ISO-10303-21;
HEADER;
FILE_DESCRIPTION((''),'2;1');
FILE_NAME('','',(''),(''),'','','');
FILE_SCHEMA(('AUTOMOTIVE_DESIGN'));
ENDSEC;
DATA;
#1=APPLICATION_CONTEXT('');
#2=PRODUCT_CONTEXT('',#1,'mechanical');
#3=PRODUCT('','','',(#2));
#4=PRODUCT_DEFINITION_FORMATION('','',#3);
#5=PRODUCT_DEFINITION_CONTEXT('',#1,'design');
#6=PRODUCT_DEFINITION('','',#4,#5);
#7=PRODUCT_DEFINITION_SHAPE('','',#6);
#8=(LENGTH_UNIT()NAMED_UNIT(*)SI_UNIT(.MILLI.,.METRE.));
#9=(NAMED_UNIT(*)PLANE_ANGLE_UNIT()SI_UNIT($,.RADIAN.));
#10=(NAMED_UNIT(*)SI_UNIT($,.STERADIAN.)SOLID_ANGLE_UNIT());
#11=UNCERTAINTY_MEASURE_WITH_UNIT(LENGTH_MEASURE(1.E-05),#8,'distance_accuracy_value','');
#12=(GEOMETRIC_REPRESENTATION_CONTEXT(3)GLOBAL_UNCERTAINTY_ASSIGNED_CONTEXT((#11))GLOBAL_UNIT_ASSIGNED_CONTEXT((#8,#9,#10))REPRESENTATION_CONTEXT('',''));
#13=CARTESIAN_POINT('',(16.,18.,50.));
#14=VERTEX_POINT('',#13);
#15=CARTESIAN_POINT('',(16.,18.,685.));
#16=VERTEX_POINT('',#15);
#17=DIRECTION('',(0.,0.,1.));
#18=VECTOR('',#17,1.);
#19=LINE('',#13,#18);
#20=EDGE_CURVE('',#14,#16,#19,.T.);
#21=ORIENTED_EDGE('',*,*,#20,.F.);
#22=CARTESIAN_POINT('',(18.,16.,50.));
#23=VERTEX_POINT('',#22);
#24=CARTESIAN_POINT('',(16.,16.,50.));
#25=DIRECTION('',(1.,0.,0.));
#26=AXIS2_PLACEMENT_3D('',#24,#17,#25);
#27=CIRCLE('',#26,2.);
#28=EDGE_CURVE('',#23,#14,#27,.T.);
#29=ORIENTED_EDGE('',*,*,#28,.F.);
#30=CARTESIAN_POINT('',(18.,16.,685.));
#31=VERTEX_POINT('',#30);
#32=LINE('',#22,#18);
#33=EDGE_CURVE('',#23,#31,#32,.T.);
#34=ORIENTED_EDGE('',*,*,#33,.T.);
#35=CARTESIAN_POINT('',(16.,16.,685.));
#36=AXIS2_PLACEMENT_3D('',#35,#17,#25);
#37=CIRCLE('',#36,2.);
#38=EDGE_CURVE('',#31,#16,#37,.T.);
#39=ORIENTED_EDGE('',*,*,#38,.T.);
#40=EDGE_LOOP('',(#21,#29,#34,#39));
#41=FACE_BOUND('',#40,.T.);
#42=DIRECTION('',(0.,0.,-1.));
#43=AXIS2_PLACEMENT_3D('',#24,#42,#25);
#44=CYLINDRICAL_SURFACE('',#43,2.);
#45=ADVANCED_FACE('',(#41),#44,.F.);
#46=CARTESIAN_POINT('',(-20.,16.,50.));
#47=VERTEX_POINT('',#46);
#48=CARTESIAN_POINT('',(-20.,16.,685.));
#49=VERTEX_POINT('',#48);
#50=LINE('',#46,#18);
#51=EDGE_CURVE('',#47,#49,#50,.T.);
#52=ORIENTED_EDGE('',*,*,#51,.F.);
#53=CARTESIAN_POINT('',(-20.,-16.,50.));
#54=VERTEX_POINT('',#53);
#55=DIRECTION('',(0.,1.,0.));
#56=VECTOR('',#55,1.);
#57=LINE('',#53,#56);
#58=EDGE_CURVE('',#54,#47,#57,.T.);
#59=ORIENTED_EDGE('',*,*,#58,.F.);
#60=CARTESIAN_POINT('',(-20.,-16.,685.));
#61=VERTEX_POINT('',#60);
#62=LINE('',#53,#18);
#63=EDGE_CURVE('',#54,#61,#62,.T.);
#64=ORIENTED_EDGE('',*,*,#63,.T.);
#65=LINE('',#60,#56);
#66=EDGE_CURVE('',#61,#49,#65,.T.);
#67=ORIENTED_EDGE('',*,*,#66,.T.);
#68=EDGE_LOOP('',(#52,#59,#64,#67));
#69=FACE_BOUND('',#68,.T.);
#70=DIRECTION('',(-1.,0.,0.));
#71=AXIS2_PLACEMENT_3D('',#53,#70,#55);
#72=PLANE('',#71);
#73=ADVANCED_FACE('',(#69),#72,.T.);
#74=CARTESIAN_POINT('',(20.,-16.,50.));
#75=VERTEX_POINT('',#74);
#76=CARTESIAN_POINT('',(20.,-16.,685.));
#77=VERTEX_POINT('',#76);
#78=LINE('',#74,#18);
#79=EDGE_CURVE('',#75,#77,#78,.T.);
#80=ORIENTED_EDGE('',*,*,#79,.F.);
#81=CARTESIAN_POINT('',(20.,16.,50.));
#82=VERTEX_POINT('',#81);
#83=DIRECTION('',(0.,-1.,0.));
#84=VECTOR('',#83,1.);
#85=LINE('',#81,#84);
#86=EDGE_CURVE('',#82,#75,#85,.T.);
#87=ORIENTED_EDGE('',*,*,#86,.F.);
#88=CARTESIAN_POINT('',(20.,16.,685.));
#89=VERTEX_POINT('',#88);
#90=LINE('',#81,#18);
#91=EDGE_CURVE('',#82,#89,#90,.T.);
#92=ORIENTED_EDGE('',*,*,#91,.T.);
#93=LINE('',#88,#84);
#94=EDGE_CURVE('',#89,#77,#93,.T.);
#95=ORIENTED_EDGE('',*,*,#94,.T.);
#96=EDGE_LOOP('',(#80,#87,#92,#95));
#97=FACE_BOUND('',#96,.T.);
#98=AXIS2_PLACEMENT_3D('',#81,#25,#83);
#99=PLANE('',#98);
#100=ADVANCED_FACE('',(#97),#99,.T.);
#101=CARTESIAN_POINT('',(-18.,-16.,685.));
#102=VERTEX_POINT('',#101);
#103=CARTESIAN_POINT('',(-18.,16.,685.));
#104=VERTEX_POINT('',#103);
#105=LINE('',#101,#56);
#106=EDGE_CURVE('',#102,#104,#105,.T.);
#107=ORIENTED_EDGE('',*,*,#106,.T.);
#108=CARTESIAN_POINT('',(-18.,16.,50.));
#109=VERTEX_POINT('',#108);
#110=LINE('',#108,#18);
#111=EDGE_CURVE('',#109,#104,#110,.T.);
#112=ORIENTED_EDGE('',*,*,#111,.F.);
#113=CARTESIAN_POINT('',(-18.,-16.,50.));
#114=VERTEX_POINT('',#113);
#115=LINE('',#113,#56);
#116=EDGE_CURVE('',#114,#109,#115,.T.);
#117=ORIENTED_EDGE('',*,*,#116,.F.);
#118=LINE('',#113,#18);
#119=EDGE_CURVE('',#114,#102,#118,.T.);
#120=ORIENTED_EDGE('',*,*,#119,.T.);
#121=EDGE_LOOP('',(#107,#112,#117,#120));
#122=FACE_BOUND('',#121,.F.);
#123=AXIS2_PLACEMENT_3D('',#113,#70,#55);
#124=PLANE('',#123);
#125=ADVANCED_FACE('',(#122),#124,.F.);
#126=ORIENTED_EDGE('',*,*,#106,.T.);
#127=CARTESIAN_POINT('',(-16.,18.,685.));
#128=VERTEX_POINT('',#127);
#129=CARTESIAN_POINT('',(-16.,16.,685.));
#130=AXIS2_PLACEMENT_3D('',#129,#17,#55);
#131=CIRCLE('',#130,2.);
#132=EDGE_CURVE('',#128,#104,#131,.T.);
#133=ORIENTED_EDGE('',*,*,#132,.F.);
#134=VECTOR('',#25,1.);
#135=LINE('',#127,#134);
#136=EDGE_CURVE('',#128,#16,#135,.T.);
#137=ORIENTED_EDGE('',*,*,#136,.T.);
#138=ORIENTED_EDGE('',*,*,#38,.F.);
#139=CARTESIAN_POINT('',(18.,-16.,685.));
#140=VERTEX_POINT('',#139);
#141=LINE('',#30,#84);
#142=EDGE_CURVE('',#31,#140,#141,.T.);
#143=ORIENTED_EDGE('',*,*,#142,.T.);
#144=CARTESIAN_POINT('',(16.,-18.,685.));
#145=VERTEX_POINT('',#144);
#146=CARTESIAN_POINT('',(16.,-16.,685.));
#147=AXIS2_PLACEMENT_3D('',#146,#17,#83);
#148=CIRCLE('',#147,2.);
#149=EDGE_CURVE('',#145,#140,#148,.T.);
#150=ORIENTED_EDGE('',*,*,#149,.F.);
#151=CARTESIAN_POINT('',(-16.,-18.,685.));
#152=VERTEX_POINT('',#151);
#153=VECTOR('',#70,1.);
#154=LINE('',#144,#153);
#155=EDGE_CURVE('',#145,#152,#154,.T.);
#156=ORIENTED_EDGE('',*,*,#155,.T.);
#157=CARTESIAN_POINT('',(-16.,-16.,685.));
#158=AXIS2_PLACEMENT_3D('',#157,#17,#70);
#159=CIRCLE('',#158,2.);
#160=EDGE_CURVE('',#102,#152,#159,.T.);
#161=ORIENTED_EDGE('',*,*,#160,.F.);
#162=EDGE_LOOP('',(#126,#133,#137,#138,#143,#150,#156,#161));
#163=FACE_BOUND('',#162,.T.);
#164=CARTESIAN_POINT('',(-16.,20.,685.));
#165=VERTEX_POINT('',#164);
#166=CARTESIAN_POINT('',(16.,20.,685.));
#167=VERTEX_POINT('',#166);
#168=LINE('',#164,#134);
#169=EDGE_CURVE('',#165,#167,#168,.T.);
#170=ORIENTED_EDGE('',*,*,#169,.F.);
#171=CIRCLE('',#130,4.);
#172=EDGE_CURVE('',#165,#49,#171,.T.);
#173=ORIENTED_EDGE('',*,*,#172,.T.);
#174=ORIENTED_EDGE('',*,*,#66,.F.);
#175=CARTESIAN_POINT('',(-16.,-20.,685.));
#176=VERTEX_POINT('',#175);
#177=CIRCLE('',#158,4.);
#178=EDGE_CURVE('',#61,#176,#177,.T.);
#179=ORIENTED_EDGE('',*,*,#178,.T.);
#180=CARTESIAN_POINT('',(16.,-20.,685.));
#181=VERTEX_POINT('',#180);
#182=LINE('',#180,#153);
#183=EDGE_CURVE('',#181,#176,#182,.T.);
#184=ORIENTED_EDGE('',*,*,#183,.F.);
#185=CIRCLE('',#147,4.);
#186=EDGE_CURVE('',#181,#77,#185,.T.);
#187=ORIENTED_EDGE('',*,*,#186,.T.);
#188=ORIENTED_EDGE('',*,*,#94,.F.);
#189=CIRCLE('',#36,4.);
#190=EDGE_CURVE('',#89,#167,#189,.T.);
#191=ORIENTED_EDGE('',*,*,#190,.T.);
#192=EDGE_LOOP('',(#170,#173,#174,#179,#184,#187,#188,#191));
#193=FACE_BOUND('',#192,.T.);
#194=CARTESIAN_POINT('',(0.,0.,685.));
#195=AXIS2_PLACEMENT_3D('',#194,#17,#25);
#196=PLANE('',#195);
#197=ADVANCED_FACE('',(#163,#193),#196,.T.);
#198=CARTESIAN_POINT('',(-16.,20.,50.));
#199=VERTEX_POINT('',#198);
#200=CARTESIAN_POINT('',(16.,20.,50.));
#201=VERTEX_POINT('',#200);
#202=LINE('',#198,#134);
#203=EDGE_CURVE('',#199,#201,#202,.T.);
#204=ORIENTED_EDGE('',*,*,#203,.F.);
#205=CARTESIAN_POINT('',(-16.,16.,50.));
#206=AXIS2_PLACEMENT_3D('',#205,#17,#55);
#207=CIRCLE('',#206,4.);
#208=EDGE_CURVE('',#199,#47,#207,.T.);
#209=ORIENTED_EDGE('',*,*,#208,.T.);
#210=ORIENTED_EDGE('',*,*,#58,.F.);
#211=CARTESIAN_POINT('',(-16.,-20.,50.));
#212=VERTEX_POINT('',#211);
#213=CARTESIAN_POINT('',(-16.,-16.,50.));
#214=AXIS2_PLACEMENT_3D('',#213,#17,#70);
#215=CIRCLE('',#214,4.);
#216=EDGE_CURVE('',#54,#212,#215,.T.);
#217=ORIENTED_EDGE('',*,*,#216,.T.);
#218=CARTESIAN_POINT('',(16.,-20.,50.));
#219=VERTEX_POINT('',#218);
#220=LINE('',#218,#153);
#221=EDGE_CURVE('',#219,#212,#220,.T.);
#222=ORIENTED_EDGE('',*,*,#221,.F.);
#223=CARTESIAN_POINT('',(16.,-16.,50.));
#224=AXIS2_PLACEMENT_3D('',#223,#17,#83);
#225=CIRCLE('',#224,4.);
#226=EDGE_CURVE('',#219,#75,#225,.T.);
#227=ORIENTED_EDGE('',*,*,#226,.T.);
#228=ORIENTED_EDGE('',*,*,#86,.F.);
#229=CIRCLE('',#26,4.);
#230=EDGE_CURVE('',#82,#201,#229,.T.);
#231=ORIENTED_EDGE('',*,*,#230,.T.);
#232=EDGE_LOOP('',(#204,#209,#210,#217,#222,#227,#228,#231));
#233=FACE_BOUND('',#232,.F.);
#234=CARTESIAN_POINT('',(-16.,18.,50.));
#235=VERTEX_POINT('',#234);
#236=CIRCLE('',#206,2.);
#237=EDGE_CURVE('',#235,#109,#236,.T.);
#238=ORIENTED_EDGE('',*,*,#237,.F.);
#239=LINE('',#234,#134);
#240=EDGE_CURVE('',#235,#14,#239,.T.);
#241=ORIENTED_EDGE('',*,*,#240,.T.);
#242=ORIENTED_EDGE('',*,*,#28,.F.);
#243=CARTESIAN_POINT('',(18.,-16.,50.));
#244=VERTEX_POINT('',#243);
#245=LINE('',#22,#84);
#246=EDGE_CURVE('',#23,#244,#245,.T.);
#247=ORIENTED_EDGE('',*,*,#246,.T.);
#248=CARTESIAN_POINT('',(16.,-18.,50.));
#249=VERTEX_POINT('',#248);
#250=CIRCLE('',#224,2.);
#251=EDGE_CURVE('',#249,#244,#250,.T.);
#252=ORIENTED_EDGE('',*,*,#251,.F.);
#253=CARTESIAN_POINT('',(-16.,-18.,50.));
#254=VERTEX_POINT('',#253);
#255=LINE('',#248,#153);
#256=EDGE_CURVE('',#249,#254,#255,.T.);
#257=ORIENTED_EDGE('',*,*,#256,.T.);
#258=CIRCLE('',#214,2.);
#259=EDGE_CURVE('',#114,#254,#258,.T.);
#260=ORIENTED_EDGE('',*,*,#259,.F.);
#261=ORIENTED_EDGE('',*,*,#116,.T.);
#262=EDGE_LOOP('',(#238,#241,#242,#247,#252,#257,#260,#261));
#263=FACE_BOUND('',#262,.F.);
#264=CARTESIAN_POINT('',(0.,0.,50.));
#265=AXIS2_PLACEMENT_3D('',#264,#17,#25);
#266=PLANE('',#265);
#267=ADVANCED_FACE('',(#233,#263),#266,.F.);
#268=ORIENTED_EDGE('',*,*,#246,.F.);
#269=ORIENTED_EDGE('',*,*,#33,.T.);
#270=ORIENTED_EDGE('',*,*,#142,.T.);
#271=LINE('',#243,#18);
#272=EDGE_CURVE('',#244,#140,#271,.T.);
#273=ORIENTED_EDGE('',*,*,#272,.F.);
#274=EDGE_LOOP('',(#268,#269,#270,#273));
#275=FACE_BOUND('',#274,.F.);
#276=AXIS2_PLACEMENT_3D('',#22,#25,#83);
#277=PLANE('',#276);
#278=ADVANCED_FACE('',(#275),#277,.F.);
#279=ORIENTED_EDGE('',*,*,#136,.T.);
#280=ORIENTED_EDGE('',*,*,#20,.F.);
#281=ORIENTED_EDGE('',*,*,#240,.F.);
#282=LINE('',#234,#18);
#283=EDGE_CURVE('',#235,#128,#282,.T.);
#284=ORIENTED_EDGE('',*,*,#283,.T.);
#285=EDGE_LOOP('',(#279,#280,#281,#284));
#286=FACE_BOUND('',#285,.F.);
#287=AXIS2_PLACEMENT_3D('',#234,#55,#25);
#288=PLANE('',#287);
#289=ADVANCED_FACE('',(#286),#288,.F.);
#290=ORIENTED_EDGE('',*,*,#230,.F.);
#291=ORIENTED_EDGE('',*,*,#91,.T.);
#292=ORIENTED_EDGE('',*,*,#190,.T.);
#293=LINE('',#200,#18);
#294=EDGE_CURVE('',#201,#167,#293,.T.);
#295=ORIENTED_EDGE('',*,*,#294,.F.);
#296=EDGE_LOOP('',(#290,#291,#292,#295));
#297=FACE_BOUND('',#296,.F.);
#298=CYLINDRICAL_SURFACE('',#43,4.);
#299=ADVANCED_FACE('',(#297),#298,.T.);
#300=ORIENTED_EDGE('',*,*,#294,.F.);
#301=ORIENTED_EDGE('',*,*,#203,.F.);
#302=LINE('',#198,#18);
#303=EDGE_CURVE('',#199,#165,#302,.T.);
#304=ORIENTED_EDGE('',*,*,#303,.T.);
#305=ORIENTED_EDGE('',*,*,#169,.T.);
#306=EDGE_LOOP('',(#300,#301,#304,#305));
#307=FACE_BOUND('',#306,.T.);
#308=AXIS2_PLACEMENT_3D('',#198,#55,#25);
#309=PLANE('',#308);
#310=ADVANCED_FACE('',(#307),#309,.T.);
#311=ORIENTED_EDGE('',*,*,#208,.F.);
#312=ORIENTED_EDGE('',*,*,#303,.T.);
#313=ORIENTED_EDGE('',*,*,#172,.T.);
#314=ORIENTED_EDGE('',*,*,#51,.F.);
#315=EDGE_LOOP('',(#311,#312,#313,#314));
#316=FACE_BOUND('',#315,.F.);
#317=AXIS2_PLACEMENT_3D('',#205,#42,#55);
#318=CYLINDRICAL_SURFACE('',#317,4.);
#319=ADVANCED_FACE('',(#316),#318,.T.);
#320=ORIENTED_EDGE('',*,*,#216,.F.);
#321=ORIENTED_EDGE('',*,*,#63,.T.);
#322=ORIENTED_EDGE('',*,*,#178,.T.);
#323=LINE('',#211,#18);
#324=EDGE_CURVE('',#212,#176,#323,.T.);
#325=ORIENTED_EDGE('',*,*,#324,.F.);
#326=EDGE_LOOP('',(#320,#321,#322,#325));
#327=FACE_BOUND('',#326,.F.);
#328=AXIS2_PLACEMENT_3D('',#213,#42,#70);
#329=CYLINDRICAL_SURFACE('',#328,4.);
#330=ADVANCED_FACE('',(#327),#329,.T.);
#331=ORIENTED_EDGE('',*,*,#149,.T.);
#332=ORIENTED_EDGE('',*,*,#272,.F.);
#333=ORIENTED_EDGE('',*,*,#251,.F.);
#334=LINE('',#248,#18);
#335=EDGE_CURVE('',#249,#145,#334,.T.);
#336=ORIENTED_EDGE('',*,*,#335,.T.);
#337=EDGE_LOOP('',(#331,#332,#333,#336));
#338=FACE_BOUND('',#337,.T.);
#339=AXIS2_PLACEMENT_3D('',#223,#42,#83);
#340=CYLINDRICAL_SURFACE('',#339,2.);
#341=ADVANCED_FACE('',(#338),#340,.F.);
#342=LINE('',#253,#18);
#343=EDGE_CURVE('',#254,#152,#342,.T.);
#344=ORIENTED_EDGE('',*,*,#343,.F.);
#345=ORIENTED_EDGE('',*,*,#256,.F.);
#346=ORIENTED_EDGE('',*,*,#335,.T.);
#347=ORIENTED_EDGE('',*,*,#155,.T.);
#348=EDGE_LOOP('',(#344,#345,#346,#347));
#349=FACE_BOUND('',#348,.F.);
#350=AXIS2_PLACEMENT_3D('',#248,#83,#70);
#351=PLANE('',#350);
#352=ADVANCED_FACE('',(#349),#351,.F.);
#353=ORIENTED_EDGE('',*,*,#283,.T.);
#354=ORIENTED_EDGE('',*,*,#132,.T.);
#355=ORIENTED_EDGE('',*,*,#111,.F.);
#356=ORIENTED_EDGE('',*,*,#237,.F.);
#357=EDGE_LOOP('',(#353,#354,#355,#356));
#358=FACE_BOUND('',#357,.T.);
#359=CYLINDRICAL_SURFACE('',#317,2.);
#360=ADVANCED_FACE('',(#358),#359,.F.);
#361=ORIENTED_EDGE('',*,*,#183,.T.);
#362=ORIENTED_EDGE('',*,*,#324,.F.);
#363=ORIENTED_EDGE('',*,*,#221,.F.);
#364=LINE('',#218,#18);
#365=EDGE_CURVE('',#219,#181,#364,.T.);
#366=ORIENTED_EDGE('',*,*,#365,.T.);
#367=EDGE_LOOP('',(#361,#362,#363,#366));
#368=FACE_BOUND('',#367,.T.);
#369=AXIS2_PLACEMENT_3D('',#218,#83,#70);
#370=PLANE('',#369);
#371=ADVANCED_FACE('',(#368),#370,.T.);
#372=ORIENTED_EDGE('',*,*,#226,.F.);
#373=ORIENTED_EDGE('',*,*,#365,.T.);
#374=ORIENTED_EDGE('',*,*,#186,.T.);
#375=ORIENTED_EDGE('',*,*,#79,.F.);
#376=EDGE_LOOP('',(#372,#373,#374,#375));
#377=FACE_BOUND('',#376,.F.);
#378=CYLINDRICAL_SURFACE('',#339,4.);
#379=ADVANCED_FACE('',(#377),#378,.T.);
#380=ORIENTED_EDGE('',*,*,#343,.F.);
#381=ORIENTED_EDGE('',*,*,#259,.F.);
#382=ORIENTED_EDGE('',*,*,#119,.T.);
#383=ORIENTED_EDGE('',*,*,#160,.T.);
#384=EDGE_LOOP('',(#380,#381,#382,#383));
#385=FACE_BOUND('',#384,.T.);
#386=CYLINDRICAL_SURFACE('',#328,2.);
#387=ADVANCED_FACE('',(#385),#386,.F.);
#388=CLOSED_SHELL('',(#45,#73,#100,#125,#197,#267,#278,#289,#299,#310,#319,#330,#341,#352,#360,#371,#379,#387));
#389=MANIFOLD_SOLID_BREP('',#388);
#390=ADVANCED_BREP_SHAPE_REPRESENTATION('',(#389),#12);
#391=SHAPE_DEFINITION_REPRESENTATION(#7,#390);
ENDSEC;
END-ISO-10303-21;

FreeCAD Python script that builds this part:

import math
import FreeCAD as App
import Part
import Sketcher
from FreeCAD import Vector
Q = App.Units.Quantity

doc = App.newDocument("Part")
body = doc.addObject("PartDesign::Body", "Body")

sketch1 = body.newObject("Sketcher::SketchObject", "Sketch")
sketch1.AttachmentSupport = (doc.getObject("XY_Plane"), [""])
sketch1.MapMode = "FlatFace"
sketch1.AttachmentOffset = App.Placement(Vector(0, 0, 50), App.Rotation())
sketch1.addGeometry([
    Part.LineSegment(Vector(-20, 16, 0), Vector(-20, -16, 0)),
    Part.ArcOfCircle(Part.Circle(Vector(-16, -16, 0), Vector(0, 0, 1), 4), math.radians(180), math.radians(270)),
    Part.LineSegment(Vector(-16, -20, 0), Vector(16, -20, 0)),
    Part.ArcOfCircle(Part.Circle(Vector(16, -16, 0), Vector(0, 0, 1), 4), math.radians(-90), math.radians(0)),
    Part.LineSegment(Vector(20, -16, 0), Vector(20, 16, 0)),
    Part.ArcOfCircle(Part.Circle(Vector(16, 16, 0), Vector(0, 0, 1), 4), math.radians(0), math.radians(90)),
    Part.LineSegment(Vector(16, 20, 0), Vector(-16, 20, 0)),
    Part.ArcOfCircle(Part.Circle(Vector(-16, 16, 0), Vector(0, 0, 1), 4), math.radians(90), math.radians(180)),
    Part.ArcOfCircle(Part.Circle(Vector(-16, 16, 0), Vector(0, 0, 1), 2), math.radians(90), math.radians(180)),
    Part.LineSegment(Vector(-16, 18, 0), Vector(16, 18, 0)),
    Part.ArcOfCircle(Part.Circle(Vector(16, 16, 0), Vector(0, 0, 1), 2), math.radians(0), math.radians(90)),
    Part.LineSegment(Vector(18, 16, 0), Vector(18, -16, 0)),
    Part.ArcOfCircle(Part.Circle(Vector(16, -16, 0), Vector(0, 0, 1), 2), math.radians(-90), math.radians(0)),
    Part.LineSegment(Vector(16, -18, 0), Vector(-16, -18, 0)),
    Part.ArcOfCircle(Part.Circle(Vector(-16, -16, 0), Vector(0, 0, 1), 2), math.radians(180), math.radians(270)),
    Part.LineSegment(Vector(-18, -16, 0), Vector(-18, 16, 0)),
], False)
sketch1.addConstraint([
    Sketcher.Constraint("Tangent", 0, 2, 1, 1),
    Sketcher.Constraint("Tangent", 1, 2, 2, 1),
    Sketcher.Constraint("Tangent", 2, 2, 3, 1),
    Sketcher.Constraint("Tangent", 3, 2, 4, 1),
    Sketcher.Constraint("Tangent", 4, 2, 5, 1),
    Sketcher.Constraint("Tangent", 5, 2, 6, 1),
    Sketcher.Constraint("Tangent", 6, 2, 7, 1),
    Sketcher.Constraint("Tangent", 7, 2, 0, 1),
    Sketcher.Constraint("Tangent", 8, 1, 9, 1),
    Sketcher.Constraint("Tangent", 9, 2, 10, 2),
    Sketcher.Constraint("Tangent", 10, 1, 11, 1),
    Sketcher.Constraint("Tangent", 11, 2, 12, 2),
    Sketcher.Constraint("Tangent", 12, 1, 13, 1),
    Sketcher.Constraint("Tangent", 13, 2, 14, 2),
    Sketcher.Constraint("Tangent", 14, 1, 15, 1),
    Sketcher.Constraint("Tangent", 15, 2, 8, 2),
    Sketcher.Constraint("Vertical", 0),
    Sketcher.Constraint("Horizontal", 2),
    Sketcher.Constraint("Vertical", 4),
    Sketcher.Constraint("Horizontal", 6),
    Sketcher.Constraint("Horizontal", 9),
    Sketcher.Constraint("Vertical", 11),
    Sketcher.Constraint("Horizontal", 13),
    Sketcher.Constraint("Vertical", 15),
    Sketcher.Constraint("Coincident", 8, 3, 7, 3),
    Sketcher.Constraint("Coincident", 10, 3, 5, 3),
    Sketcher.Constraint("Coincident", 12, 3, 3, 3),
    Sketcher.Constraint("Equal", 1, 3),
    Sketcher.Constraint("Equal", 3, 5),
    Sketcher.Constraint("Equal", 5, 7),
    Sketcher.Constraint("Equal", 12, 14),
    Sketcher.Constraint("Symmetric", 1, 3, 5, 3, -1, 1),
    Sketcher.Constraint("Equal", 13, 0),
    Sketcher.Constraint("Radius", 1, Q("4 mm")),
    Sketcher.Constraint("Radius", 8, Q("2 mm")),
    Sketcher.Constraint("DistanceX", 0, 2, -1, 1, Q("20 mm")),
])
pad1 = body.newObject("PartDesign::Pad", "Pad")
pad1.Profile = sketch1
pad1.Length = 635

doc.recompute()
